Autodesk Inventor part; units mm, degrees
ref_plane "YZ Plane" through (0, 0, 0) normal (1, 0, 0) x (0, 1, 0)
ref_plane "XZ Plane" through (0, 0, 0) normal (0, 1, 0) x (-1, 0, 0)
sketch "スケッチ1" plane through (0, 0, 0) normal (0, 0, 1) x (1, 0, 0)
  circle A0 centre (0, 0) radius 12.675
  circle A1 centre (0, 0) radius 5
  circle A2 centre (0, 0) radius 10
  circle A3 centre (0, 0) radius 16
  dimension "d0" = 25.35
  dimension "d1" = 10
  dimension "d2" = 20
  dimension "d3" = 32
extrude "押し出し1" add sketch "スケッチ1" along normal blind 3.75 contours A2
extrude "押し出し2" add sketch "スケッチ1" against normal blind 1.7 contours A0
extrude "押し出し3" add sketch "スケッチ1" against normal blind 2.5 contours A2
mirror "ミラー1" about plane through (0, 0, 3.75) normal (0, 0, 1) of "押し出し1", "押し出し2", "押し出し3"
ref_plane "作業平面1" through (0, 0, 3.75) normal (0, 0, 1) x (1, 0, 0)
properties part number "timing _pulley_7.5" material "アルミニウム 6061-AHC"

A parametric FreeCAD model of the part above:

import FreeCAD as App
import Part
import Sketcher

V = App.Vector
Q = App.Units.Quantity

doc = App.newDocument("Part")
params = doc.addObject("Spreadsheet::Sheet", "Params")
for row, (alias, value) in enumerate([
    ("sketch1_diameter", "20 mm"),
    ("sketch1_diameter2", "10 mm"),
    ("pad1_length", "3.75 mm"),
    ("sketch2_diameter", "20 mm"),
    ("sketch2_diameter2", "25.35 mm"),
    ("pad2_length", "1.7 mm"),
    ("sketch3_diameter", "20 mm"),
    ("sketch3_diameter2", "10 mm"),
    ("pad3_length", "2.5 mm"),
], start=1):
    params.set(f"A{row}", alias)
    params.set(f"B{row}", "=" + value)
    params.setAlias(f"B{row}", alias)

body = doc.addObject("PartDesign::Body", "Body")
body.AllowCompound = True

# Sketch on XY plane
sketch1 = body.newObject("Sketcher::SketchObject", "Sketch")
sketch1.AttachmentSupport = (doc.getObject("XY_Plane"), [""])
sketch1.MapMode = "FlatFace"
sketch1.addGeometry([
    Part.Circle(V(0, 0, 0), V(0, 0, 1), 10),
    Part.Circle(V(0, 0, 0), V(0, 0, 1), 5),
], False)
sketch1.addConstraint([
    Sketcher.Constraint("Coincident", 0, 3, -1, 1),
    Sketcher.Constraint("Coincident", 1, 3, -1, 1),
    Sketcher.Constraint("Diameter", 0, Q("20 mm")),
    Sketcher.Constraint("Diameter", 1, Q("10 mm")),
])
sketch1.setExpression("Constraints[2]", "Params.sketch1_diameter")
sketch1.setExpression("Constraints[3]", "Params.sketch1_diameter2")
pad1 = body.newObject("PartDesign::Pad", "Pad")
pad1.Profile = sketch1
pad1.setExpression("Length", "Params.pad1_length")

# Sketch on XY plane
sketch2 = body.newObject("Sketcher::SketchObject", "Sketch001")
sketch2.AttachmentSupport = (doc.getObject("XY_Plane"), [""])
sketch2.MapMode = "FlatFace"
sketch2.addGeometry([
    Part.Circle(V(0, 0, 0), V(0, 0, 1), 13),
    Part.Circle(V(0, 0, 0), V(0, 0, 1), 10),
], False)
sketch2.addConstraint([
    Sketcher.Constraint("Coincident", 0, 3, -1, 1),
    Sketcher.Constraint("Coincident", 1, 3, -1, 1),
    Sketcher.Constraint("Diameter", 1, Q("20 mm")),
    Sketcher.Constraint("Diameter", 0, Q("25.35 mm")),
])
sketch2.setExpression("Constraints[2]", "Params.sketch2_diameter")
sketch2.setExpression("Constraints[3]", "Params.sketch2_diameter2")
pad2 = body.newObject("PartDesign::Pad", "Pad001")
pad2.Profile = sketch2
pad2.setExpression("Length", "Params.pad2_length")
pad2.Reversed = True

# Sketch on XY plane
sketch3 = body.newObject("Sketcher::SketchObject", "Sketch002")
sketch3.AttachmentSupport = (doc.getObject("XY_Plane"), [""])
sketch3.MapMode = "FlatFace"
sketch3.addGeometry([
    Part.Circle(V(0, 0, 0), V(0, 0, 1), 10),
    Part.Circle(V(0, 0, 0), V(0, 0, 1), 5),
], False)
sketch3.addConstraint([
    Sketcher.Constraint("Coincident", 0, 3, -1, 1),
    Sketcher.Constraint("Coincident", 1, 3, -1, 1),
    Sketcher.Constraint("Diameter", 0, Q("20 mm")),
    Sketcher.Constraint("Diameter", 1, Q("10 mm")),
])
sketch3.setExpression("Constraints[2]", "Params.sketch3_diameter")
sketch3.setExpression("Constraints[3]", "Params.sketch3_diameter2")
pad3 = body.newObject("PartDesign::Pad", "Pad002")
pad3.Profile = sketch3
pad3.setExpression("Length", "Params.pad3_length")
pad3.Reversed = True
doc.recompute()

datumplane = body.newObject("PartDesign::Plane", "DatumPlane")
datumplane.AttachmentSupport = (doc.getObject("XY_Plane"), [""])
datumplane.MapMode = "FlatFace"
datumplane.AttachmentOffset = App.Placement(V(0, 0, 3.75), App.Rotation())
mirrored = body.newObject("PartDesign::Mirrored", "Mirrored")
mirrored.Originals = [pad1, pad2, pad3]
mirrored.MirrorPlane = (datumplane, [""])
body.Tip = mirrored

doc.recompute()
